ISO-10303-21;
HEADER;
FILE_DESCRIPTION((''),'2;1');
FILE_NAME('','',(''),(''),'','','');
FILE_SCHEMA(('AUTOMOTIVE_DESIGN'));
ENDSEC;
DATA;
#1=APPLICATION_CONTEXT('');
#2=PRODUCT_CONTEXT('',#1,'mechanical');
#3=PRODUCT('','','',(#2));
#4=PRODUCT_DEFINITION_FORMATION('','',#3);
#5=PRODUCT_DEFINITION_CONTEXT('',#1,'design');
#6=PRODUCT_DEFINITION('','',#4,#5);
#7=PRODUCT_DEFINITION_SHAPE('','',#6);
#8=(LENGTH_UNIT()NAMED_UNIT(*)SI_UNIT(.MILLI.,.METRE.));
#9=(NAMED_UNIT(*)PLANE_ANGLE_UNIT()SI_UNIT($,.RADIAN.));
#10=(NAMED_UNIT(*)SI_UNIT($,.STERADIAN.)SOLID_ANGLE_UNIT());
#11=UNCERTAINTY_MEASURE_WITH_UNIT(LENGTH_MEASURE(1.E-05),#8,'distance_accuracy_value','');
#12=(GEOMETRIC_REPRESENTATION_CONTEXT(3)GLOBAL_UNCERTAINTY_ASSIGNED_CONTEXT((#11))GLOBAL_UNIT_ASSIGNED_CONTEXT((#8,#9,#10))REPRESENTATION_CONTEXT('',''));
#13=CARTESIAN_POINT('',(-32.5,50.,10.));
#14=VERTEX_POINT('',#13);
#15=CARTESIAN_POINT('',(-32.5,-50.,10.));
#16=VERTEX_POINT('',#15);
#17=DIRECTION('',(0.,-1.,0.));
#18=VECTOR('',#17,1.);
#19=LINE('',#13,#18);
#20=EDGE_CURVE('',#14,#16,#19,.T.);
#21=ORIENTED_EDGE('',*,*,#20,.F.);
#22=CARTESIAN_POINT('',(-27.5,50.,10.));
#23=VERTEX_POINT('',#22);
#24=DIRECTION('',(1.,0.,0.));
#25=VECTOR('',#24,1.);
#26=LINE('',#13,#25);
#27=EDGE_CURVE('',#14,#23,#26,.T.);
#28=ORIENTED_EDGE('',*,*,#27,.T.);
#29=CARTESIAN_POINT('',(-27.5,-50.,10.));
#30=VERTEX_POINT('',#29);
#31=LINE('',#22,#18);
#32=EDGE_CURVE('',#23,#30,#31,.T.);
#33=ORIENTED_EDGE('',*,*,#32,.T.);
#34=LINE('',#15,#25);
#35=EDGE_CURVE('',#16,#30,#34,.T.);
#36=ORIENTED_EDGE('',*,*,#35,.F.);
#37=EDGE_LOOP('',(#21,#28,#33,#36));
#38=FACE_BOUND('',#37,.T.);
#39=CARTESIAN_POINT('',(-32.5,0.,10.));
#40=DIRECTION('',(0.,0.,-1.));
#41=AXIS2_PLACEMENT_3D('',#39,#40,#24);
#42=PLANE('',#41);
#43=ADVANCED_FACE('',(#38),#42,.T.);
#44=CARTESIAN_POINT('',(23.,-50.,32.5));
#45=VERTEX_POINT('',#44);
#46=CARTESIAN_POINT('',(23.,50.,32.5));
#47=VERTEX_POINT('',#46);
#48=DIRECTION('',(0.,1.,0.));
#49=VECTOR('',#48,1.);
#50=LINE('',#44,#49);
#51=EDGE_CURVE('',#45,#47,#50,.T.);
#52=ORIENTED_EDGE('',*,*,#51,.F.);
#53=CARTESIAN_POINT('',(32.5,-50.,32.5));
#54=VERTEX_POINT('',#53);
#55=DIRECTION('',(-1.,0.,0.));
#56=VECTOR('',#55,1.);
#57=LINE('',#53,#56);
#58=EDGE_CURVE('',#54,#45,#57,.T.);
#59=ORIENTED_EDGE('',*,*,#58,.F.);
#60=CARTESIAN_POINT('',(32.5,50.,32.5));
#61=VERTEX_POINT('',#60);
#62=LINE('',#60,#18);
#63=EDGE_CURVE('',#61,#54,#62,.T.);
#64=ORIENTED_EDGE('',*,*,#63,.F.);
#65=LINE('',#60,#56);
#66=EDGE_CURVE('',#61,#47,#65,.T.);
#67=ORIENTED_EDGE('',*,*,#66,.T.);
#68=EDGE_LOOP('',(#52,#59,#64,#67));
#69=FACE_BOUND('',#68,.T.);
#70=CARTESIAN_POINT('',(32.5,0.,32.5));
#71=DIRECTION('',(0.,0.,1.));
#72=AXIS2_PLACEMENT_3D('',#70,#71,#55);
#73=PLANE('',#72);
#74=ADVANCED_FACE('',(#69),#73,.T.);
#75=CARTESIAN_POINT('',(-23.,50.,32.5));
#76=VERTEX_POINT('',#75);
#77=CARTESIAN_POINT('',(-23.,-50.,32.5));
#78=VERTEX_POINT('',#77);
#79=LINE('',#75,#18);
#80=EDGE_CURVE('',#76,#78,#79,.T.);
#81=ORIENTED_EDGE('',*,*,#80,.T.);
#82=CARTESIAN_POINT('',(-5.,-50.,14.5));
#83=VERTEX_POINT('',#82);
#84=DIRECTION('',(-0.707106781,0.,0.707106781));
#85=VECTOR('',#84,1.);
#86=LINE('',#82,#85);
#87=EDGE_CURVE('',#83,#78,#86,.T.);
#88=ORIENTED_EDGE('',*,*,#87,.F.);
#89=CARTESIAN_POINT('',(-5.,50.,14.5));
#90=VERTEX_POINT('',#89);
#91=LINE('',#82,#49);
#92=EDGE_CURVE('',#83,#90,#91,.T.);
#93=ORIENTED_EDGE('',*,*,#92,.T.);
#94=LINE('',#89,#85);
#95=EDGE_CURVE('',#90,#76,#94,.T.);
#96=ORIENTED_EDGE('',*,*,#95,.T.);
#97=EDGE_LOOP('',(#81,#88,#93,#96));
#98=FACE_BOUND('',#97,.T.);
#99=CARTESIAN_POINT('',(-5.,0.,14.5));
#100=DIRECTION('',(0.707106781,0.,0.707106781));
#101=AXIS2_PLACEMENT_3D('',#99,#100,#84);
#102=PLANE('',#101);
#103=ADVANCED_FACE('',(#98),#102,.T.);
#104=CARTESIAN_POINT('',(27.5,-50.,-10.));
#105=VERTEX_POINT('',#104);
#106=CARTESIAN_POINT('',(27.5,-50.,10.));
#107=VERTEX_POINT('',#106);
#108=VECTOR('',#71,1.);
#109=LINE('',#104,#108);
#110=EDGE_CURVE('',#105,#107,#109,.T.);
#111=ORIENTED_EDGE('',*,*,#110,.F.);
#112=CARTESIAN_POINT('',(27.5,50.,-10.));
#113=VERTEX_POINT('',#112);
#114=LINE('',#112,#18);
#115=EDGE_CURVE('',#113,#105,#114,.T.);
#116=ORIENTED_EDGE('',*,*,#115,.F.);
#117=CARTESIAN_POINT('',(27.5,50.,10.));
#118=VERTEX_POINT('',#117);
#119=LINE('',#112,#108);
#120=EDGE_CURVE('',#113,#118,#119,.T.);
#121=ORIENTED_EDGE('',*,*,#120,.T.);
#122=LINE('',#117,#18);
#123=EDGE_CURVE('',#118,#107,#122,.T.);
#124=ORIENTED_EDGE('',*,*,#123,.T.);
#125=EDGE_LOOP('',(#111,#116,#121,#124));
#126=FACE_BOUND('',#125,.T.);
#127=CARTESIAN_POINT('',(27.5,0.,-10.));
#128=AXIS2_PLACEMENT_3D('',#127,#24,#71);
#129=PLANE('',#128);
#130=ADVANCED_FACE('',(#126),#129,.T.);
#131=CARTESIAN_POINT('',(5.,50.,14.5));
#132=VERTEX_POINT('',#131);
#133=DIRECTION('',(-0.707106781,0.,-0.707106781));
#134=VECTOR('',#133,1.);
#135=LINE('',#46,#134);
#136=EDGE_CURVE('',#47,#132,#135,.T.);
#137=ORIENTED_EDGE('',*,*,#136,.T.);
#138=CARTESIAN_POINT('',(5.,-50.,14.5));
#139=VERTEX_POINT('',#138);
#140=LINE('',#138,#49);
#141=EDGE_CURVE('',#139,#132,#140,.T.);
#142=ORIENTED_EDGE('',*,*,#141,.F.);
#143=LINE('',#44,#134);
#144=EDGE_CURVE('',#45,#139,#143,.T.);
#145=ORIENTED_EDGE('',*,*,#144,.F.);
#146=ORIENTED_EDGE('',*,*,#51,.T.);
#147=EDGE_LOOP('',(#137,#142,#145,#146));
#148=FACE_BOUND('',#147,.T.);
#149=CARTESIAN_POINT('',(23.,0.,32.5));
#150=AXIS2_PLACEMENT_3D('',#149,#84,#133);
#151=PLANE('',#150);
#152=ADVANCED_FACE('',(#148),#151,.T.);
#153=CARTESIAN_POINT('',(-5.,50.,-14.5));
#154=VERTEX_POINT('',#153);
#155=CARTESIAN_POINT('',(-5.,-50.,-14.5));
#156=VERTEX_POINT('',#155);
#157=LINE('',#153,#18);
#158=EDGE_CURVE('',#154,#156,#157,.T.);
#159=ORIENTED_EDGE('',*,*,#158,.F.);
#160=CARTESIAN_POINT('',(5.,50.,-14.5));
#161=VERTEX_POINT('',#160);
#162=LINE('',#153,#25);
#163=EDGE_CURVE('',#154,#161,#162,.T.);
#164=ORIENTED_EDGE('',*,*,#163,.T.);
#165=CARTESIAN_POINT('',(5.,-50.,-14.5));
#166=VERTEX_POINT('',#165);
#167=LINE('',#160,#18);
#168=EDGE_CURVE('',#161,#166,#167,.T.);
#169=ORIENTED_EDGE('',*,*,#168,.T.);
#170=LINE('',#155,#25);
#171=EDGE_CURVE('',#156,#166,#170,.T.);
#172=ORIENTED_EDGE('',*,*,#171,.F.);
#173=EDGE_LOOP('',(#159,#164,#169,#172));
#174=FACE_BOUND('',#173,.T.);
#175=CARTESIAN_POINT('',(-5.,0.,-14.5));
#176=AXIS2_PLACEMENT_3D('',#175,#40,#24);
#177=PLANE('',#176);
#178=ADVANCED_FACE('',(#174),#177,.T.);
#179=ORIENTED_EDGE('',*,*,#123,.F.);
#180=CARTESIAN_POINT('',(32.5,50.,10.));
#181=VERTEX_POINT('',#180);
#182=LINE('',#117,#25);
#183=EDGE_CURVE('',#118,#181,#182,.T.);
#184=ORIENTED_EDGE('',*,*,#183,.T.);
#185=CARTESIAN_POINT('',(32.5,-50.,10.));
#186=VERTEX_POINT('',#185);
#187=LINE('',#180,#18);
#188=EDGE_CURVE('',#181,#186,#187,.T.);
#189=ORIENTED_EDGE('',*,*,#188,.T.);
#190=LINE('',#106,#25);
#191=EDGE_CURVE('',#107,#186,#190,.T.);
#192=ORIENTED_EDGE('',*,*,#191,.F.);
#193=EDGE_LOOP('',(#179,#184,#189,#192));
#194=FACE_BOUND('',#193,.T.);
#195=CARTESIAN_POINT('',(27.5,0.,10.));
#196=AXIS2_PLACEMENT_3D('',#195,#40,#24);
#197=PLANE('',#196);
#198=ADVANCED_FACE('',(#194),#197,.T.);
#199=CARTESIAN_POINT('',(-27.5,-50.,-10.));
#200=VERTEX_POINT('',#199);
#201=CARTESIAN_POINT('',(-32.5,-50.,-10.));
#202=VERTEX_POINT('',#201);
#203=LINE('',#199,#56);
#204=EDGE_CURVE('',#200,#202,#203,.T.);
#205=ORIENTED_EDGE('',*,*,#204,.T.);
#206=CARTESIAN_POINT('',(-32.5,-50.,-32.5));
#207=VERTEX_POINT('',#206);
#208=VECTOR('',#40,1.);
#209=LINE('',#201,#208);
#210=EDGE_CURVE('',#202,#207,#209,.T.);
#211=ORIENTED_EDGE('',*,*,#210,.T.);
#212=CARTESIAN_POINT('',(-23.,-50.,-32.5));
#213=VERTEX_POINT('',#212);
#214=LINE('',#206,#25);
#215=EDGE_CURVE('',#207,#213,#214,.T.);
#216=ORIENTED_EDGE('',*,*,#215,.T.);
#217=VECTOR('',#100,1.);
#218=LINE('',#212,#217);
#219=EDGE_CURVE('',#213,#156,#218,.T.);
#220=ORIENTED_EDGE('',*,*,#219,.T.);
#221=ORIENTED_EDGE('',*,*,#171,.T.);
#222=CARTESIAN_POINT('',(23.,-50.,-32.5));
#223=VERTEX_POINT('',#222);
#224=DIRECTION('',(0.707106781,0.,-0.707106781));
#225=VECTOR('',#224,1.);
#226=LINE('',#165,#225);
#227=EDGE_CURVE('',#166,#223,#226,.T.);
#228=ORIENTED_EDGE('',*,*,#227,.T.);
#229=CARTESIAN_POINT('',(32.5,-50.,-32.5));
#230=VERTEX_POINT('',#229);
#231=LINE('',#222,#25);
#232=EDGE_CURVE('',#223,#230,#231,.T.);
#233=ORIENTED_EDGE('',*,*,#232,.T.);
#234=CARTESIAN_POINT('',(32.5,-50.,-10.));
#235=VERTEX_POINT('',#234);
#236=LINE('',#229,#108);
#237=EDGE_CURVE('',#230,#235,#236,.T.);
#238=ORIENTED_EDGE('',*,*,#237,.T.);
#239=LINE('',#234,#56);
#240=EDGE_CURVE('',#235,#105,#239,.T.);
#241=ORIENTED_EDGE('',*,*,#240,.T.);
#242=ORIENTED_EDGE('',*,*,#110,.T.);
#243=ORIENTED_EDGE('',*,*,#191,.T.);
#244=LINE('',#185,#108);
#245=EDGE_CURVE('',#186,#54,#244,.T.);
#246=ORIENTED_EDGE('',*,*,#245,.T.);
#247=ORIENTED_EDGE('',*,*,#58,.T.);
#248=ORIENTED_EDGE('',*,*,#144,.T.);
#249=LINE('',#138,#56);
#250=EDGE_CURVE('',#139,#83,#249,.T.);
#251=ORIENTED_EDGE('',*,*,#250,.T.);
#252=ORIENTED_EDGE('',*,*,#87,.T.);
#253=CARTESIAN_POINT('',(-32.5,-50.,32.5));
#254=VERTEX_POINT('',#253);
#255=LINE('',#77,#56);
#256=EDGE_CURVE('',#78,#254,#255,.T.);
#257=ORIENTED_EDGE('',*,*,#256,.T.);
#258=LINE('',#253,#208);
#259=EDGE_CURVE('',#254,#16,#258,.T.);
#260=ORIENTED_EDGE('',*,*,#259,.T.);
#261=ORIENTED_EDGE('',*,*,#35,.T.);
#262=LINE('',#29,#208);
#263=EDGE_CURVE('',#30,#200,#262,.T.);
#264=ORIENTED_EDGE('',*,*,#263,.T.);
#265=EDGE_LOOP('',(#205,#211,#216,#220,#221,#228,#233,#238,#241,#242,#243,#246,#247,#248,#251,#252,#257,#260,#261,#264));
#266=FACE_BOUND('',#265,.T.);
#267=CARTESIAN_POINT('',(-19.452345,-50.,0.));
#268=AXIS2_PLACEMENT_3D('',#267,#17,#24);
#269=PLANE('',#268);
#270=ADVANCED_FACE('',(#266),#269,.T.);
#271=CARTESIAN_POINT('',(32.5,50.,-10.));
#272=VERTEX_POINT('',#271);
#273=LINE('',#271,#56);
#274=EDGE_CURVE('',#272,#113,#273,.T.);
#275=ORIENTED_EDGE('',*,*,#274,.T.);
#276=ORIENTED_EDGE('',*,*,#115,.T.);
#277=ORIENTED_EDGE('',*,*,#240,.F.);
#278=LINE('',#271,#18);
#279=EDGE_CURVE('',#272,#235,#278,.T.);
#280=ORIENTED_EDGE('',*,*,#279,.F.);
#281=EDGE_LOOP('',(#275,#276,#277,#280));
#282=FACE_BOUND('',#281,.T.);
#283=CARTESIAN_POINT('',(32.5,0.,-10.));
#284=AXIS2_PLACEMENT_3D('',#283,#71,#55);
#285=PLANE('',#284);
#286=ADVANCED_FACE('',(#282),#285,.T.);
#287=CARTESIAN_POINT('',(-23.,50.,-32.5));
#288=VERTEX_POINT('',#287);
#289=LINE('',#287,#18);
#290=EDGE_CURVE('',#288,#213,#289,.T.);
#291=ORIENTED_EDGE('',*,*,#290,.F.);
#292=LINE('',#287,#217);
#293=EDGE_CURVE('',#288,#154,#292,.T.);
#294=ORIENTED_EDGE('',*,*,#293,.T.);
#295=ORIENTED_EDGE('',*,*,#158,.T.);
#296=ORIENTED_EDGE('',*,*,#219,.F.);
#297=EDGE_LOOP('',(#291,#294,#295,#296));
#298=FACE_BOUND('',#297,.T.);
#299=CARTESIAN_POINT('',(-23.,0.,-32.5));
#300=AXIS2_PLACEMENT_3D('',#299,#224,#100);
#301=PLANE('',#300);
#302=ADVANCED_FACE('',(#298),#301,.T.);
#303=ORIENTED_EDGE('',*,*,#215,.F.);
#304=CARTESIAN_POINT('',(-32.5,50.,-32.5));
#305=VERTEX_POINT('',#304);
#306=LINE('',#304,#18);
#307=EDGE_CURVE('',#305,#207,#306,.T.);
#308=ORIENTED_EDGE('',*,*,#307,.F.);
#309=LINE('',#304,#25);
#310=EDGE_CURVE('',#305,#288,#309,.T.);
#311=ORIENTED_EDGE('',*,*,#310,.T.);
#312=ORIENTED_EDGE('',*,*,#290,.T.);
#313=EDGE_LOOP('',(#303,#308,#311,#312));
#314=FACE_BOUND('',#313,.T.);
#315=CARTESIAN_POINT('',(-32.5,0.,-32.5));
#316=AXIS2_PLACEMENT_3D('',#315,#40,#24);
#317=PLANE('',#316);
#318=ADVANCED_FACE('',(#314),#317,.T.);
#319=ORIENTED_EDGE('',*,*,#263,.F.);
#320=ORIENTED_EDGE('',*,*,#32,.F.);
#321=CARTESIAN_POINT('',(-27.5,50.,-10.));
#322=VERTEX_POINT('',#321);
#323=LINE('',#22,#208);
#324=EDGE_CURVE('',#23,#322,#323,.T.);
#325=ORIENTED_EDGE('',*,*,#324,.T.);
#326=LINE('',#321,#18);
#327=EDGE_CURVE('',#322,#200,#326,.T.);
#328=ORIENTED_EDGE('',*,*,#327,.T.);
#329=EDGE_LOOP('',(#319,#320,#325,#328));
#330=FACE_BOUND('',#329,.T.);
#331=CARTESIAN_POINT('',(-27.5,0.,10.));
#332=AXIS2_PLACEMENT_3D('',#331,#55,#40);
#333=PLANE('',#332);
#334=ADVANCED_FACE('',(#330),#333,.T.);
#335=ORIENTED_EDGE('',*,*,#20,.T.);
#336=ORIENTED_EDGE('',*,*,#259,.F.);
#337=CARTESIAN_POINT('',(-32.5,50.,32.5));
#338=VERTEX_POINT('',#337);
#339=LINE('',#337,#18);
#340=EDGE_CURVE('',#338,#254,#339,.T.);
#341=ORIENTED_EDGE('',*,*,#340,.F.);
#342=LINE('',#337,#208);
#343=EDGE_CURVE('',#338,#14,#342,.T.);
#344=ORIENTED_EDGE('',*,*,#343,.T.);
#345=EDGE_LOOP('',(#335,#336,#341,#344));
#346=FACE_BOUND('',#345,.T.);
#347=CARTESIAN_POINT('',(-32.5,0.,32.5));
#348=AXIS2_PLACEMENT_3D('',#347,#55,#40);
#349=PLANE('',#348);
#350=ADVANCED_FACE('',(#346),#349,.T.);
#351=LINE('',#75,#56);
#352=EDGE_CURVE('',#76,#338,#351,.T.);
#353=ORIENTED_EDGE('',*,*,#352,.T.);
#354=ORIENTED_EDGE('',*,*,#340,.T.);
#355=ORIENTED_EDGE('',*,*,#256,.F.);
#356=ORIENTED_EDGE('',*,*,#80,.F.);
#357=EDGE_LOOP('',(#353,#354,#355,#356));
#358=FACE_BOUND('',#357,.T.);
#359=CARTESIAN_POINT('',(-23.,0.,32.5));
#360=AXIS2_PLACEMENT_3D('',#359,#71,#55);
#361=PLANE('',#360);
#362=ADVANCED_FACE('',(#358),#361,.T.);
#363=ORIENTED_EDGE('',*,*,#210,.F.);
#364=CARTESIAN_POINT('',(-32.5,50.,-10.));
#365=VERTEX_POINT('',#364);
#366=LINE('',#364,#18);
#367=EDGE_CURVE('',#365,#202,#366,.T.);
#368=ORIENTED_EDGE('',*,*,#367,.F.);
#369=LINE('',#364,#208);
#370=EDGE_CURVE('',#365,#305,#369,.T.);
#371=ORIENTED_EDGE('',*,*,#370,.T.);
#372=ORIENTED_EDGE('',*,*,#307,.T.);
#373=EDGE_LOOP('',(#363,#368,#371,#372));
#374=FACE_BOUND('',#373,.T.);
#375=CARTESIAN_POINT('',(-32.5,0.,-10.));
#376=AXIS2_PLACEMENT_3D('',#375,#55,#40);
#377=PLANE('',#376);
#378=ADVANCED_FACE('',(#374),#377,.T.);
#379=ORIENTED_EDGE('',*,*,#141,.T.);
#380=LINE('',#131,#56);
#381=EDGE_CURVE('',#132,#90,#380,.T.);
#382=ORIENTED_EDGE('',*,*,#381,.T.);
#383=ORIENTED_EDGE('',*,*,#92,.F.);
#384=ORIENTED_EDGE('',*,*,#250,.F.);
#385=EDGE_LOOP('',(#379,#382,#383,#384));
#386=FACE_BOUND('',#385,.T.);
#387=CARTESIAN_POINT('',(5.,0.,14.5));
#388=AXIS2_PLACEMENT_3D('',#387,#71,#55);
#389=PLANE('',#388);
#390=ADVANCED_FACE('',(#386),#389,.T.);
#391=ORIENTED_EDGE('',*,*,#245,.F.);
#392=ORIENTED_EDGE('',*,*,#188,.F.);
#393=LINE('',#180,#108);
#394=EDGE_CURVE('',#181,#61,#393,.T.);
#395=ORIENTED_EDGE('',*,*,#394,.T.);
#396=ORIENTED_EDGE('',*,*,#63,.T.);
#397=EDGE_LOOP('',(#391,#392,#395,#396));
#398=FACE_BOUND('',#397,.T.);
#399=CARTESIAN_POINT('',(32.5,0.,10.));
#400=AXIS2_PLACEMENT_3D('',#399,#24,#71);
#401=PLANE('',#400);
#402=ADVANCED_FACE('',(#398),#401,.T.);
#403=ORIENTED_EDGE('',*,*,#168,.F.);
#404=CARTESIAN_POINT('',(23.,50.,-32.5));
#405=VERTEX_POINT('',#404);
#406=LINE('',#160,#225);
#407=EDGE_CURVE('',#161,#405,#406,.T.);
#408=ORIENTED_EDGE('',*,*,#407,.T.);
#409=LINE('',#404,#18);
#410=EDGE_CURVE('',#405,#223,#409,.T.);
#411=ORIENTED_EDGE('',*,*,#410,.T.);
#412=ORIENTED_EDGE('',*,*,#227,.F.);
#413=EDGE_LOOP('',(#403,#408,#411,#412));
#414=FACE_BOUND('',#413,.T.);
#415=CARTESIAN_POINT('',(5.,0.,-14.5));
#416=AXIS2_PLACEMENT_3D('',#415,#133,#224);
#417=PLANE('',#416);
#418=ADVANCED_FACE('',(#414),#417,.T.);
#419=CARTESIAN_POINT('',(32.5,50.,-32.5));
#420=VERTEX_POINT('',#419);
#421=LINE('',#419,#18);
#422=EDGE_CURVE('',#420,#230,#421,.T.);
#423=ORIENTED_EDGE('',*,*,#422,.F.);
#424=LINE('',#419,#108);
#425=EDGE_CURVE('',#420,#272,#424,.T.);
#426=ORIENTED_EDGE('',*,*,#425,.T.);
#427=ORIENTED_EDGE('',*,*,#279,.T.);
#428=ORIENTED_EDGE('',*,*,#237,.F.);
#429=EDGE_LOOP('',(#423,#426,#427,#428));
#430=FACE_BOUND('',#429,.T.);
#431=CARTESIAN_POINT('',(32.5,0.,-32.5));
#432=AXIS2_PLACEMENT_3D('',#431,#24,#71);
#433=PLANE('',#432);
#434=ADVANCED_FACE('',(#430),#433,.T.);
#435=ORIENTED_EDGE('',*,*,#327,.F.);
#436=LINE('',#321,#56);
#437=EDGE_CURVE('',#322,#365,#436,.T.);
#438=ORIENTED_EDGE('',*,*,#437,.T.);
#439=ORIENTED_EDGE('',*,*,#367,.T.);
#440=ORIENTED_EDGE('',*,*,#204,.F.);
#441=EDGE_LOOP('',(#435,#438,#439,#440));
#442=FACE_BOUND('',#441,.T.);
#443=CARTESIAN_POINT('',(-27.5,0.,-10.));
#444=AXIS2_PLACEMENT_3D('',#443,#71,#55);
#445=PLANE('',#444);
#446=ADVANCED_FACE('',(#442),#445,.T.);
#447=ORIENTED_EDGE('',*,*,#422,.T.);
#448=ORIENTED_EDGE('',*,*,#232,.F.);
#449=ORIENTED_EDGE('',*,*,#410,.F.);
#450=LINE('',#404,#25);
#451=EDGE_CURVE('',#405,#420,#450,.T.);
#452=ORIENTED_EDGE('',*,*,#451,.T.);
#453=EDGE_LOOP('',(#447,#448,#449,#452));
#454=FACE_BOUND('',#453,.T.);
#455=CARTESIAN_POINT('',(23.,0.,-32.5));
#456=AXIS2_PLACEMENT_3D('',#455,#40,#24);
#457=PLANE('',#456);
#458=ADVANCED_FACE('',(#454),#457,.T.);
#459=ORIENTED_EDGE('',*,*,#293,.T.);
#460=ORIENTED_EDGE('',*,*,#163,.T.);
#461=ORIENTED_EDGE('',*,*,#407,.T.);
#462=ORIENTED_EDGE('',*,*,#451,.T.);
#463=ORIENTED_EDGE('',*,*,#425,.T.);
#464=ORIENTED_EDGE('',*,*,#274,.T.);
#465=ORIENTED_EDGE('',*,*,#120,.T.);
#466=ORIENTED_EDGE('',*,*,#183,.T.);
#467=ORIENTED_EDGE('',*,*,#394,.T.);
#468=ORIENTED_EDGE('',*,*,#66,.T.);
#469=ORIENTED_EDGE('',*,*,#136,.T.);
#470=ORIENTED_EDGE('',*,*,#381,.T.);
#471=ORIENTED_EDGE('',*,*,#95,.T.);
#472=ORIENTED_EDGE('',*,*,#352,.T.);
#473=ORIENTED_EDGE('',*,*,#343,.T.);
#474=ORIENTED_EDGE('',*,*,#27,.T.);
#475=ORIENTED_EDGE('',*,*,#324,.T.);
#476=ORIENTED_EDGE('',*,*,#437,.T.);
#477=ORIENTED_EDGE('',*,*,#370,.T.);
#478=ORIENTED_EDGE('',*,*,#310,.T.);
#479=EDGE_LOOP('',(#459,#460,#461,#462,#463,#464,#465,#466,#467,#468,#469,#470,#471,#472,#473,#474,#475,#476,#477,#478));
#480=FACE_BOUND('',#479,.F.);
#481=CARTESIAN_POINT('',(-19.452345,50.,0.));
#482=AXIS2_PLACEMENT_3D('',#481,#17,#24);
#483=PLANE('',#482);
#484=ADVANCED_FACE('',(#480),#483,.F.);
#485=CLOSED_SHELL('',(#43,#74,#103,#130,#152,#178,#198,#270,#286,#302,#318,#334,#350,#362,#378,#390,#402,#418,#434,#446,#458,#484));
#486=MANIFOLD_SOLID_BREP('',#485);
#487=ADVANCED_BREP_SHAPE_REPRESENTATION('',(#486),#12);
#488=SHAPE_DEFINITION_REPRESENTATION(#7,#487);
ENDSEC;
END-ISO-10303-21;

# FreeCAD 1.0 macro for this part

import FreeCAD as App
import Part
import Sketcher

V = App.Vector
Q = App.Units.Quantity


def add_polygon(sketch, points):
    """Adds a closed chain of lines whose ends are joined by coincident constraints."""
    first, n = sketch.GeometryCount, len(points)
    for a, b in zip(points, points[1:] + points[:1]):
        sketch.addGeometry(Part.LineSegment(App.Vector(*a, 0), App.Vector(*b, 0)), False)
    for i in range(n):
        sketch.addConstraint(Sketcher.Constraint("Coincident", first + i, 2, first + (i + 1) % n, 1))

doc = App.newDocument("Part")
body = doc.addObject("PartDesign::Body", "Body")

sketch1 = doc.addObject("Sketcher::SketchObject", "Sketch")
body.addObject(sketch1)
sketch1.AttachmentSupport = (doc.XZ_Plane, [""])
sketch1.MapMode = "FlatFace"
add_polygon(sketch1, [(-5, 14), (-23, 32), (-32, 32), (-32, 10), (-28, 10), (-28, -10), (-32, -10), (-32, -32), (-23, -32), (-5, -14), (5, -14), (23, -32), (32, -32), (32, -10), (28, -10), (28, 10), (32, 10), (32, 32), (23, 32), (5, 14)])
sketch1.addConstraint(Sketcher.Constraint("Horizontal", 1))
sketch1.addConstraint(Sketcher.Constraint("Vertical", 2))
sketch1.addConstraint(Sketcher.Constraint("Horizontal", 3))
sketch1.addConstraint(Sketcher.Constraint("Vertical", 4))
sketch1.addConstraint(Sketcher.Constraint("Horizontal", 5))
sketch1.addConstraint(Sketcher.Constraint("Vertical", 6))
sketch1.addConstraint(Sketcher.Constraint("Horizontal", 7))
sketch1.addConstraint(Sketcher.Constraint("Horizontal", 9))
sketch1.addConstraint(Sketcher.Constraint("Horizontal", 11))
sketch1.addConstraint(Sketcher.Constraint("Vertical", 12))
sketch1.addConstraint(Sketcher.Constraint("Horizontal", 13))
sketch1.addConstraint(Sketcher.Constraint("Vertical", 14))
sketch1.addConstraint(Sketcher.Constraint("Horizontal", 15))
sketch1.addConstraint(Sketcher.Constraint("Vertical", 16))
sketch1.addConstraint(Sketcher.Constraint("Horizontal", 17))
sketch1.addConstraint(Sketcher.Constraint("Horizontal", 19))
sketch1.addConstraint(Sketcher.Constraint("Symmetric", 0, 2, 10, 2, -1, 1))
sketch1.addConstraint(Sketcher.Constraint("Symmetric", 2, 2, 12, 2, -1, 1))
sketch1.addConstraint(Sketcher.Constraint("Symmetric", 4, 2, 14, 2, -1, 1))
sketch1.addConstraint(Sketcher.Constraint("Symmetric", 6, 2, 16, 2, -1, 1))
sketch1.addConstraint(Sketcher.Constraint("Symmetric", 8, 2, 18, 2, -1, 1))
sketch1.addConstraint(Sketcher.Constraint("Symmetric", 7, 2, 10, 2, -2))
sketch1.addConstraint(Sketcher.Constraint("Symmetric", 5, 2, 12, 2, -2))
sketch1.addConstraint(Sketcher.Constraint("Perpendicular", 0, 8))
sketch1.addConstraint(Sketcher.Constraint("Perpendicular", 8, 10))
sketch1.addConstraint(Sketcher.Constraint("Perpendicular", 10, 18))
sketch1.addConstraint(Sketcher.Constraint("Vertical", 9, 2, 18, 2))
sketch1.addConstraint(Sketcher.Constraint("DistanceX", 3, 1, 3, 2, Q("5 mm")))
sketch1.addConstraint(Sketcher.Constraint("DistanceX", 9, 1, 9, 2, Q("10 mm")))
sketch1.addConstraint(Sketcher.Constraint("DistanceY", 4, 2, 4, 1, Q("20 mm")))
sketch1.addConstraint(Sketcher.Constraint("DistanceX", 1, 2, 1, 1, Q("9.5 mm")))
sketch1.addConstraint(Sketcher.Constraint("DistanceY", 2, 2, 2, 1, Q("22.5 mm")))
sketch1.addConstraint(Sketcher.Constraint("DistanceX", 0, 2, -1, 1, Q("23 mm")))
pad1 = doc.addObject("PartDesign::Pad", "Pad")
body.addObject(pad1)
pad1.Profile = sketch1
pad1.Length = 100
pad1.Midplane = True

doc.recompute()
